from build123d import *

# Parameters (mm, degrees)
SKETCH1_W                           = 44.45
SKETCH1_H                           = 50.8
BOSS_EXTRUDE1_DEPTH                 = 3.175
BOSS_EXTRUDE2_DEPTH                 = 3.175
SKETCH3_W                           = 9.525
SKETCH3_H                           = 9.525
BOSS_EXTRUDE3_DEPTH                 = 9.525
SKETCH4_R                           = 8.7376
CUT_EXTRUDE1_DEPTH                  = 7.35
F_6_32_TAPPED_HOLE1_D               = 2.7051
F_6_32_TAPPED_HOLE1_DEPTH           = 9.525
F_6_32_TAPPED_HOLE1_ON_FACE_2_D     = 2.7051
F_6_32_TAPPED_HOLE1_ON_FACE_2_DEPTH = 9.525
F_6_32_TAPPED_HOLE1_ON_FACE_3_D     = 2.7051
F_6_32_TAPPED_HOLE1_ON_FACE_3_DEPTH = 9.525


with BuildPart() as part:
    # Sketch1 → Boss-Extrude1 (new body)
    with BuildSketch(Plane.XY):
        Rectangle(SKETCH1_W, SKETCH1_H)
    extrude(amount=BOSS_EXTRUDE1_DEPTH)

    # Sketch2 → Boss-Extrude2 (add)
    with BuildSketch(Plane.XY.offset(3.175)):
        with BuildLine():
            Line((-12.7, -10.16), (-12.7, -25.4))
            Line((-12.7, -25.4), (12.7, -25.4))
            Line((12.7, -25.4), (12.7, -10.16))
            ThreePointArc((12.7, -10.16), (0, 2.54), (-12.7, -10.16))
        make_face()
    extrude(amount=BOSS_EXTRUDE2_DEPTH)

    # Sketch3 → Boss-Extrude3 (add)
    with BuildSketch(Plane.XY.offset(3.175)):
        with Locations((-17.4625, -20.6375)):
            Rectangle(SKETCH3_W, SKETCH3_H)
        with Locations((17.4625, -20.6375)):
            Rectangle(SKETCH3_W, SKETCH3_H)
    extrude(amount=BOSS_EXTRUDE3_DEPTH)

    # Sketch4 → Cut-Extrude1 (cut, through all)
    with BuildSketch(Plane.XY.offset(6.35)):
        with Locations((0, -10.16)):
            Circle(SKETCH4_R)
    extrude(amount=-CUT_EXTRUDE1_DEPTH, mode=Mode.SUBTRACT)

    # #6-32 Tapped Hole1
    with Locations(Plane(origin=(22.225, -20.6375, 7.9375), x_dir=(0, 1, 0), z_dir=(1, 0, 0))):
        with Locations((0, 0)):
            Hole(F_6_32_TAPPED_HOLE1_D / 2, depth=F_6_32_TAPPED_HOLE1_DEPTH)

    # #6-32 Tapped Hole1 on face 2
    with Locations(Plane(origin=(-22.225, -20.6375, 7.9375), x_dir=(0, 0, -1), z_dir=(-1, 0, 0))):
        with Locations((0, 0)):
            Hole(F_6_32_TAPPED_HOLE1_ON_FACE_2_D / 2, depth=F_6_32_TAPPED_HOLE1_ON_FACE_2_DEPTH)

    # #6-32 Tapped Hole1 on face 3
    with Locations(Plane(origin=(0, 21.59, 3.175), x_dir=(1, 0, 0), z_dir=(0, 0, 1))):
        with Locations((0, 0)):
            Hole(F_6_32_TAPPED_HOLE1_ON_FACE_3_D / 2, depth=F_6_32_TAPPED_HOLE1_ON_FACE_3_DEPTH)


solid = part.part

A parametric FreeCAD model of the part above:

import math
import FreeCAD as App
import Part
import Sketcher
from FreeCAD import Vector
Q = App.Units.Quantity


def add_polygon(sketch, points):
    """Adds a closed chain of lines whose ends are joined by coincident constraints."""
    first, n = sketch.GeometryCount, len(points)
    for a, b in zip(points, points[1:] + points[:1]):
        sketch.addGeometry(Part.LineSegment(App.Vector(*a, 0), App.Vector(*b, 0)), False)
    for i in range(n):
        sketch.addConstraint(Sketcher.Constraint("Coincident", first + i, 2, first + (i + 1) % n, 1))

doc = App.newDocument("Part")
body = doc.addObject("PartDesign::Body", "Body")

sketch1 = body.newObject("Sketcher::SketchObject", "Sketch")
sketch1.AttachmentSupport = (doc.getObject("XY_Plane"), [""])
sketch1.MapMode = "FlatFace"
add_polygon(sketch1, [(-22, 25), (-22, -25), (22, -25), (22, 25)])
sketch1.addConstraint(Sketcher.Constraint("Vertical", 0))
sketch1.addConstraint(Sketcher.Constraint("Horizontal", 1))
sketch1.addConstraint(Sketcher.Constraint("Vertical", 2))
sketch1.addConstraint(Sketcher.Constraint("Horizontal", 3))
sketch1.addConstraint(Sketcher.Constraint("Symmetric", 0, 2, 2, 2, -1, 1))
sketch1.addConstraint(Sketcher.Constraint("DistanceY", 0, 2, 0, 1, Q("2 in")))
sketch1.addConstraint(Sketcher.Constraint("DistanceX", 1, 1, 1, 2, Q("1.75 in")))
pad1 = body.newObject("PartDesign::Pad", "Pad")
pad1.Profile = sketch1
pad1.Length = Q("0.125 in")

sketch2 = body.newObject("Sketcher::SketchObject", "Sketch001")
sketch2.AttachmentSupport = (doc.getObject("XY_Plane"), [""])
sketch2.MapMode = "FlatFace"
sketch2.AttachmentOffset = App.Placement(Vector(0, 0, 0.125 * 25.4), App.Rotation())
sketch2.addGeometry(Part.LineSegment(Vector(-13, -10, 0), Vector(-13, -25, 0)), False)
sketch2.addGeometry(Part.LineSegment(Vector(-13, -25, 0), Vector(13, -25, 0)), False)
sketch2.addGeometry(Part.LineSegment(Vector(13, -25, 0), Vector(13, -10, 0)), False)
sketch2.addGeometry(Part.ArcOfCircle(Part.Circle(Vector(0, -10, 0), Vector(0, 0, 1), 13), math.radians(0), math.radians(180)), False)
sketch2.addConstraint(Sketcher.Constraint("Coincident", 0, 2, 1, 1))
sketch2.addConstraint(Sketcher.Constraint("Coincident", 1, 2, 2, 1))
sketch2.addConstraint(Sketcher.Constraint("Tangent", 2, 2, 3, 1))
sketch2.addConstraint(Sketcher.Constraint("Tangent", 3, 2, 0, 1))
sketch2.addConstraint(Sketcher.Constraint("Vertical", 0))
sketch2.addConstraint(Sketcher.Constraint("Horizontal", 1))
sketch2.addConstraint(Sketcher.Constraint("Vertical", 2))
sketch2.addConstraint(Sketcher.Constraint("PointOnObject", 3, 3, -2))
sketch2.addConstraint(Sketcher.Constraint("Radius", 3, Q("0.5 in")))
sketch2.addConstraint(Sketcher.Constraint("DistanceY", 0, 2, 0, 1, Q("0.6 in")))
sketch2.addConstraint(Sketcher.Constraint("DistanceY", 0, 2, -1, 1, Q("1 in")))
pad2 = body.newObject("PartDesign::Pad", "Pad001")
pad2.Profile = sketch2
pad2.Length = Q("0.125 in")

sketch3 = body.newObject("Sketcher::SketchObject", "Sketch002")
sketch3.AttachmentSupport = (doc.getObject("XY_Plane"), [""])
sketch3.MapMode = "FlatFace"
sketch3.AttachmentOffset = App.Placement(Vector(0, 0, 0.125 * 25.4), App.Rotation())
add_polygon(sketch3, [(-22, -16), (-22, -25), (-13, -25), (-13, -16)])
add_polygon(sketch3, [(13, -16), (13, -25), (22, -25), (22, -16)])
sketch3.addConstraint(Sketcher.Constraint("Vertical", 0))
sketch3.addConstraint(Sketcher.Constraint("Horizontal", 1))
sketch3.addConstraint(Sketcher.Constraint("Vertical", 2))
sketch3.addConstraint(Sketcher.Constraint("Horizontal", 3))
sketch3.addConstraint(Sketcher.Constraint("Vertical", 4))
sketch3.addConstraint(Sketcher.Constraint("Horizontal", 5))
sketch3.addConstraint(Sketcher.Constraint("Vertical", 6))
sketch3.addConstraint(Sketcher.Constraint("Horizontal", 7))
sketch3.addConstraint(Sketcher.Constraint("Symmetric", 1, 2, 4, 2, -2))
sketch3.addConstraint(Sketcher.Constraint("Symmetric", 3, 2, 6, 2, -2))
sketch3.addConstraint(Sketcher.Constraint("Equal", 7, 0))
sketch3.addConstraint(Sketcher.Constraint("DistanceY", 0, 2, -1, 1, Q("1 in")))
sketch3.addConstraint(Sketcher.Constraint("DistanceX", 1, 2, 4, 2, Q("1 in")))
sketch3.addConstraint(Sketcher.Constraint("DistanceX", 1, 1, 1, 2, Q("0.375 in")))
pad3 = body.newObject("PartDesign::Pad", "Pad002")
pad3.Profile = sketch3
pad3.Length = Q("0.375 in")

sketch4 = body.newObject("Sketcher::SketchObject", "Sketch003")
sketch4.AttachmentSupport = (doc.getObject("XY_Plane"), [""])
sketch4.MapMode = "FlatFace"
sketch4.AttachmentOffset = App.Placement(Vector(0, 0, 0.25 * 25.4), App.Rotation())
sketch4.addGeometry(Part.Circle(Vector(0, -10, 0), Vector(0, 0, 1), 9), False)
sketch4.addConstraint(Sketcher.Constraint("PointOnObject", 0, 3, -2))
sketch4.addConstraint(Sketcher.Constraint("Diameter", 0, Q("0.688 in")))
sketch4.addConstraint(Sketcher.Constraint("DistanceY", 0, 3, -1, 1, Q("0.4 in")))
pocket1 = body.newObject("PartDesign::Pocket", "Pocket")
pocket1.Profile = sketch4
pocket1.Type = "ThroughAll"

sketch5 = body.newObject("Sketcher::SketchObject", "Sketch004")
sketch5.AttachmentSupport = (doc.getObject("YZ_Plane"), [""])
sketch5.MapMode = "FlatFace"
sketch5.AttachmentOffset = App.Placement(Vector(0, 0, 0.875 * 25.4), App.Rotation())
sketch5.addGeometry(Part.Circle(Vector(-20.6, 7.9, 0), Vector(0, 0, 1), 1.4), False)
sketch5.addConstraint(Sketcher.Constraint("Diameter", 0, Q("0.1065 in")))
sketch5.addConstraint(Sketcher.Constraint("DistanceX", 0, 3, -1, 1, Q("0.8125 in")))
sketch5.addConstraint(Sketcher.Constraint("DistanceY", -1, 1, 0, 3, Q("0.3125 in")))
doc.recompute()
hole = body.newObject("PartDesign::Hole", "Hole")
hole.Profile = sketch5
hole.ThreadType = "None"
hole.Diameter = Q("0.1065 in")
hole.DepthType = "Dimension"
hole.Depth = Q("0.375 in")
hole.DrillPoint = "Flat"

sketch6 = body.newObject("Sketcher::SketchObject", "Sketch005")
sketch6.AttachmentSupport = (doc.getObject("YZ_Plane"), [""])
sketch6.MapMode = "FlatFace"
sketch6.AttachmentOffset = App.Placement(Vector(0, 0, -0.875 * 25.4), App.Rotation())
sketch6.addGeometry(Part.Circle(Vector(-20.6, 7.9, 0), Vector(0, 0, 1), 1.4), False)
sketch6.addConstraint(Sketcher.Constraint("Diameter", 0, Q("0.1065 in")))
sketch6.addConstraint(Sketcher.Constraint("DistanceX", 0, 3, -1, 1, Q("0.8125 in")))
sketch6.addConstraint(Sketcher.Constraint("DistanceY", -1, 1, 0, 3, Q("0.3125 in")))
doc.recompute()
hole2 = body.newObject("PartDesign::Hole", "Hole001")
hole2.Profile = sketch6
hole2.ThreadType = "None"
hole2.Diameter = Q("0.1065 in")
hole2.DepthType = "Dimension"
hole2.Depth = Q("0.375 in")
hole2.DrillPoint = "Flat"
hole2.Reversed = True

sketch7 = body.newObject("Sketcher::SketchObject", "Sketch006")
sketch7.AttachmentSupport = (doc.getObject("XY_Plane"), [""])
sketch7.MapMode = "FlatFace"
sketch7.AttachmentOffset = App.Placement(Vector(0, 0, 0.125 * 25.4), App.Rotation())
sketch7.addGeometry(Part.Circle(Vector(0, 21.6, 0), Vector(0, 0, 1), 1.4), False)
sketch7.addConstraint(Sketcher.Constraint("PointOnObject", 0, 3, -2))
sketch7.addConstraint(Sketcher.Constraint("Diameter", 0, Q("0.1065 in")))
sketch7.addConstraint(Sketcher.Constraint("DistanceY", -1, 1, 0, 3, Q("0.85 in")))
doc.recompute()
hole3 = body.newObject("PartDesign::Hole", "Hole002")
hole3.Profile = sketch7
hole3.ThreadType = "None"
hole3.Diameter = Q("0.1065 in")
hole3.DepthType = "Dimension"
hole3.Depth = Q("0.375 in")
hole3.DrillPoint = "Flat"

doc.recompute()
